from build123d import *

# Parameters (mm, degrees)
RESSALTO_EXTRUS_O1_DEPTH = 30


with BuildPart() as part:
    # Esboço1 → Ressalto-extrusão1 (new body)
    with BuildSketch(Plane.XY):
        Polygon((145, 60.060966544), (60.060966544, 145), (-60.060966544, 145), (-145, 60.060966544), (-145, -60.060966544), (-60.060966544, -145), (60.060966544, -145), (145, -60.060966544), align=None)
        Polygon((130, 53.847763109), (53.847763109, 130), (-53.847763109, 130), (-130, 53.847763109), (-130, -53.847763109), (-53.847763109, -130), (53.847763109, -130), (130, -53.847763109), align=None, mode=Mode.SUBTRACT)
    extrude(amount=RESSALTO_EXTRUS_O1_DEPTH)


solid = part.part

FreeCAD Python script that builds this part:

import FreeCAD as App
import Part
import Sketcher

doc = App.newDocument("Part")
body = doc.addObject("PartDesign::Body", "Body")

sketch1 = body.newObject("Sketcher::SketchObject", "Sketch")
sketch1.AttachmentSupport = (doc.getObject("XY_Plane"), [""])
sketch1.MapMode = "FlatFace"
sketch1.addGeometry(Part.LineSegment(App.Vector(145, 60, 0), App.Vector(60, 145, 0)), False)
sketch1.addGeometry(Part.LineSegment(App.Vector(60, 145, 0), App.Vector(-60, 145, 0)), False)
sketch1.addGeometry(Part.LineSegment(App.Vector(-60, 145, 0), App.Vector(-145, 60, 0)), False)
sketch1.addGeometry(Part.LineSegment(App.Vector(-145, 60, 0), App.Vector(-145, -60, 0)), False)
sketch1.addGeometry(Part.LineSegment(App.Vector(-145, -60, 0), App.Vector(-60, -145, 0)), False)
sketch1.addGeometry(Part.LineSegment(App.Vector(-60, -145, 0), App.Vector(60, -145, 0)), False)
sketch1.addGeometry(Part.LineSegment(App.Vector(60, -145, 0), App.Vector(145, -60, 0)), False)
sketch1.addGeometry(Part.LineSegment(App.Vector(145, -60, 0), App.Vector(145, 60, 0)), False)
sketch1.addGeometry(Part.LineSegment(App.Vector(54, 130, 0), App.Vector(130, 54, 0)), False)
sketch1.addGeometry(Part.LineSegment(App.Vector(130, 54, 0), App.Vector(130, -54, 0)), False)
sketch1.addGeometry(Part.LineSegment(App.Vector(130, -54, 0), App.Vector(54, -130, 0)), False)
sketch1.addGeometry(Part.LineSegment(App.Vector(54, -130, 0), App.Vector(-54, -130, 0)), False)
sketch1.addGeometry(Part.LineSegment(App.Vector(-54, -130, 0), App.Vector(-130, -54, 0)), False)
sketch1.addGeometry(Part.LineSegment(App.Vector(-130, -54, 0), App.Vector(-130, 54, 0)), False)
sketch1.addGeometry(Part.LineSegment(App.Vector(-130, 54, 0), App.Vector(-54, 130, 0)), False)
sketch1.addGeometry(Part.LineSegment(App.Vector(-54, 130, 0), App.Vector(54, 130, 0)), False)
sketch1.addConstraint(Sketcher.Constraint("Coincident", 0, 2, 1, 1))
sketch1.addConstraint(Sketcher.Constraint("Coincident", 1, 2, 2, 1))
sketch1.addConstraint(Sketcher.Constraint("Coincident", 2, 2, 3, 1))
sketch1.addConstraint(Sketcher.Constraint("Coincident", 3, 2, 4, 1))
sketch1.addConstraint(Sketcher.Constraint("Coincident", 4, 2, 5, 1))
sketch1.addConstraint(Sketcher.Constraint("Coincident", 5, 2, 6, 1))
sketch1.addConstraint(Sketcher.Constraint("Coincident", 6, 2, 7, 1))
sketch1.addConstraint(Sketcher.Constraint("Coincident", 7, 2, 0, 1))
sketch1.addConstraint(Sketcher.Constraint("Coincident", 8, 2, 9, 1))
sketch1.addConstraint(Sketcher.Constraint("Coincident", 9, 2, 10, 1))
sketch1.addConstraint(Sketcher.Constraint("Coincident", 10, 2, 11, 1))
sketch1.addConstraint(Sketcher.Constraint("Coincident", 11, 2, 12, 1))
sketch1.addConstraint(Sketcher.Constraint("Coincident", 12, 2, 13, 1))
sketch1.addConstraint(Sketcher.Constraint("Coincident", 13, 2, 14, 1))
sketch1.addConstraint(Sketcher.Constraint("Coincident", 14, 2, 15, 1))
sketch1.addConstraint(Sketcher.Constraint("Coincident", 15, 2, 8, 1))
sketch1.addConstraint(Sketcher.Constraint("Horizontal", 1))
sketch1.addConstraint(Sketcher.Constraint("Vertical", 3))
sketch1.addConstraint(Sketcher.Constraint("Horizontal", 5))
sketch1.addConstraint(Sketcher.Constraint("Vertical", 7))
sketch1.addConstraint(Sketcher.Constraint("Vertical", 9))
sketch1.addConstraint(Sketcher.Constraint("Horizontal", 11))
sketch1.addConstraint(Sketcher.Constraint("Vertical", 13))
sketch1.addConstraint(Sketcher.Constraint("Horizontal", 15))
sketch1.addConstraint(Sketcher.Constraint("Symmetric", 0, 2, 4, 2, -1, 1))
sketch1.addConstraint(Sketcher.Constraint("Symmetric", 2, 2, 6, 2, -1, 1))
sketch1.addConstraint(Sketcher.Constraint("Symmetric", 8, 2, 12, 2, -1, 1))
sketch1.addConstraint(Sketcher.Constraint("Symmetric", 10, 2, 14, 2, -1, 1))
sketch1.addConstraint(Sketcher.Constraint("Perpendicular", 0, 2))
sketch1.addConstraint(Sketcher.Constraint("Perpendicular", 2, 4))
sketch1.addConstraint(Sketcher.Constraint("Perpendicular", 4, 6))
sketch1.addConstraint(Sketcher.Constraint("Perpendicular", 6, 8))
sketch1.addConstraint(Sketcher.Constraint("Perpendicular", 8, 10))
sketch1.addConstraint(Sketcher.Constraint("Perpendicular", 10, 12))
sketch1.addConstraint(Sketcher.Constraint("Perpendicular", 12, 14))
sketch1.addConstraint(Sketcher.Constraint("Horizontal", 3, 2, 6, 2))
sketch1.addConstraint(Sketcher.Constraint("Horizontal", 9, 2, 12, 2))
sketch1.addConstraint(Sketcher.Constraint("Vertical", 1, 2, 4, 2))
sketch1.addConstraint(Sketcher.Constraint("Equal", 5, 3))
sketch1.addConstraint(Sketcher.Constraint("Equal", 15, 9))
sketch1.addConstraint(Sketcher.Constraint("DistanceY", -1, 1, 0, 2, 145.0))
sketch1.addConstraint(Sketcher.Constraint("DistanceX", -1, 1, 8, 2, 130.0))
sketch1.addConstraint(Sketcher.Constraint("DistanceX", 1, 2, 1, 1, 120.121933))
sketch1.addConstraint(Sketcher.Constraint("DistanceX", 11, 2, 11, 1, 107.695526))
pad1 = body.newObject("PartDesign::Pad", "Pad")
pad1.Profile = sketch1
pad1.Length = 30

doc.recompute()
